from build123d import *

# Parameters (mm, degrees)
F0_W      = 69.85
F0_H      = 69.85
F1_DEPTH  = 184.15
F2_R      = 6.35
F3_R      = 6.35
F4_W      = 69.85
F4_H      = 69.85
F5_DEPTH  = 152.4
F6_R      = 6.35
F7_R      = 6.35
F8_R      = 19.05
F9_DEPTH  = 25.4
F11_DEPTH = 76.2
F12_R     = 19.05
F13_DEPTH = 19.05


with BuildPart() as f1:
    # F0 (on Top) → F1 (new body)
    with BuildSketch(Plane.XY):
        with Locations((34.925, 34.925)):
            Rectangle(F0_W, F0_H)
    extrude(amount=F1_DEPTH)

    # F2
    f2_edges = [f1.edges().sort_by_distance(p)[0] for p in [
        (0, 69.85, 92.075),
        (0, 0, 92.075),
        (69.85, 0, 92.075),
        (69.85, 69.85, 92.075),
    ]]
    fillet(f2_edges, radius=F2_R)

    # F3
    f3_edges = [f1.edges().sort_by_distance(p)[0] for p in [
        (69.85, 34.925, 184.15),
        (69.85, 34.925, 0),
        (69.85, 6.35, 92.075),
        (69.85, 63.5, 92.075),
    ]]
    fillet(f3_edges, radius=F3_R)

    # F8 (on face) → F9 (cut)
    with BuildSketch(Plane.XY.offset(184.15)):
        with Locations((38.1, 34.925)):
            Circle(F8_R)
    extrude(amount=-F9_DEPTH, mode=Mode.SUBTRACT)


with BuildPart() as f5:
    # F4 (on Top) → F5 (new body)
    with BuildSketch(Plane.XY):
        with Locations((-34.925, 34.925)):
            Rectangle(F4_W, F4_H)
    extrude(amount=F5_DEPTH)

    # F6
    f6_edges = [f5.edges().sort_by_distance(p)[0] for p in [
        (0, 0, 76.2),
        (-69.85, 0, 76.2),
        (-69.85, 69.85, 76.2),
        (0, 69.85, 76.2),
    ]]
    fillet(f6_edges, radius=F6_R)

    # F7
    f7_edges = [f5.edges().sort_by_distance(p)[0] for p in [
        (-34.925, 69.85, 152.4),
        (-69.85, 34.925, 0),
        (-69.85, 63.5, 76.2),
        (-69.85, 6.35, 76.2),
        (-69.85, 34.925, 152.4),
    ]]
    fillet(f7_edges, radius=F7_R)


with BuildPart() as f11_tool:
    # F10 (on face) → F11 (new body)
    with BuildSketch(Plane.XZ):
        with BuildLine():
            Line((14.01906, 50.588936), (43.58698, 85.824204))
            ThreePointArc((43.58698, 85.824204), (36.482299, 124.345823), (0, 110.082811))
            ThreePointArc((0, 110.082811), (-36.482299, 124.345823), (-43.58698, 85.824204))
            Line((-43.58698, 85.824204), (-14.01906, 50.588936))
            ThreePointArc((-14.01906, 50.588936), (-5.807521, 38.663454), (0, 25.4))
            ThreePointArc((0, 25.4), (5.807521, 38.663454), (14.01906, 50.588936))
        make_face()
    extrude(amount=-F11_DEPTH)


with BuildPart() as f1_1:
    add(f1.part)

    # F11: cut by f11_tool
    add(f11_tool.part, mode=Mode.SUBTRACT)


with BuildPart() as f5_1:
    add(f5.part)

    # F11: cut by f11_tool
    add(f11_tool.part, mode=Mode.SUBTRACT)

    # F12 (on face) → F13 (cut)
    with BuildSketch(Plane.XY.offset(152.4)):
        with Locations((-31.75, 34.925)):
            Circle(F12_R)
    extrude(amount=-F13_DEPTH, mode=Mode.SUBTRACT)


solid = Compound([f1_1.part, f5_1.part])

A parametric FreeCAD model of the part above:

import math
import FreeCAD as App
import Part
import Sketcher
from FreeCAD import Vector
Q = App.Units.Quantity


def edges_at(feature, points):
    """Names of the edges that pass closest to the given points."""
    edges = feature.Shape.Edges
    near = lambda p: min(range(len(edges)), key=lambda i: edges[i].distToShape(Part.Vertex(*p))[0])
    return sorted({f"Edge{near(p) + 1}" for p in points})

doc = App.newDocument("Part")
body = doc.addObject("PartDesign::Body", "Body")

# Sketch on XY plane
sketch1 = doc.addObject("Sketcher::SketchObject", "Sketch")
body.addObject(sketch1)
sketch1.AttachmentSupport = (doc.XY_Plane, [""])
sketch1.MapMode = "FlatFace"
sketch1.addGeometry(Part.LineSegment(Vector(0, 69.85, 0), Vector(0, 0, 0)), False)
sketch1.addGeometry(Part.LineSegment(Vector(0, 0, 0), Vector(69.85, 0, 0)), False)
sketch1.addGeometry(Part.LineSegment(Vector(69.85, 0, 0), Vector(69.85, 69.85, 0)), False)
sketch1.addGeometry(Part.LineSegment(Vector(69.85, 69.85, 0), Vector(0, 69.85, 0)), False)
sketch1.addConstraint(Sketcher.Constraint("Coincident", 0, 2, 1, 1))
sketch1.addConstraint(Sketcher.Constraint("Coincident", 1, 2, 2, 1))
sketch1.addConstraint(Sketcher.Constraint("Coincident", 2, 2, 3, 1))
sketch1.addConstraint(Sketcher.Constraint("Coincident", 3, 2, 0, 1))
sketch1.addConstraint(Sketcher.Constraint("Vertical", 0))
sketch1.addConstraint(Sketcher.Constraint("Horizontal", 1))
sketch1.addConstraint(Sketcher.Constraint("Vertical", 2))
sketch1.addConstraint(Sketcher.Constraint("Horizontal", 3))
sketch1.addConstraint(Sketcher.Constraint("Coincident", 0, 2, -1, 1))
sketch1.addConstraint(Sketcher.Constraint("Equal", 3, 0))
sketch1.addConstraint(Sketcher.Constraint("DistanceX", 1, 1, 1, 2, Q("2.75 in")))
pad1 = doc.addObject("PartDesign::Pad", "Pad")
body.addObject(pad1)
pad1.Profile = sketch1
pad1.Length = Q("7.25 in")
doc.recompute()

fillet = doc.addObject("PartDesign::Fillet", "Fillet")
body.addObject(fillet)
fillet.Base = (pad1, edges_at(pad1, [
    (0, 69.85, 92.075),
    (0, 0, 92.075),
    (69.85, 0, 92.075),
    (69.85, 69.85, 92.075),
]))
fillet.Radius = Q("0.25 in")
doc.recompute()

fillet2 = doc.addObject("PartDesign::Fillet", "Fillet001")
body.addObject(fillet2)
fillet2.Base = (fillet, edges_at(fillet, [
    (69.85, 34.925, 184.15),
    (69.85, 34.925, 0),
    (69.85, 6.35, 92.075),
    (69.85, 63.5, 92.075),
]))
fillet2.Radius = Q("0.25 in")

# Sketch on XY plane
sketch2 = doc.addObject("Sketcher::SketchObject", "Sketch001")
body.addObject(sketch2)
sketch2.AttachmentSupport = (doc.XY_Plane, [""])
sketch2.MapMode = "FlatFace"
sketch2.AttachmentOffset = App.Placement(Vector(0, 0, 7.25 * 25.4), App.Rotation())
sketch2.addGeometry(Part.Circle(Vector(38.1, 34.925, 0), Vector(0, 0, 1), 19.05), False)
sketch2.addConstraint(Sketcher.Constraint("Diameter", 0, Q("1.5 in")))
sketch2.addConstraint(Sketcher.Constraint("DistanceX", -1, 1, 0, 3, Q("1.5 in")))
sketch2.addConstraint(Sketcher.Constraint("DistanceY", -1, 1, 0, 3, Q("1.375 in")))
pocket1 = doc.addObject("PartDesign::Pocket", "Pocket")
body.addObject(pocket1)
pocket1.Profile = sketch2
pocket1.Length = Q("1 in")
body2 = doc.addObject("PartDesign::Body", "Body001")

# Sketch on XY plane
sketch3 = doc.addObject("Sketcher::SketchObject", "Sketch002")
body2.addObject(sketch3)
sketch3.AttachmentSupport = (doc.getObject("XY_Plane001"), [""])
sketch3.MapMode = "FlatFace"
sketch3.addGeometry(Part.LineSegment(Vector(-69.85, 69.85, 0), Vector(-69.85, 0, 0)), False)
sketch3.addGeometry(Part.LineSegment(Vector(-69.85, 0, 0), Vector(0, 0, 0)), False)
sketch3.addGeometry(Part.LineSegment(Vector(0, 0, 0), Vector(0, 69.85, 0)), False)
sketch3.addGeometry(Part.LineSegment(Vector(0, 69.85, 0), Vector(-69.85, 69.85, 0)), False)
sketch3.addConstraint(Sketcher.Constraint("Coincident", 0, 2, 1, 1))
sketch3.addConstraint(Sketcher.Constraint("Coincident", 1, 2, 2, 1))
sketch3.addConstraint(Sketcher.Constraint("Coincident", 2, 2, 3, 1))
sketch3.addConstraint(Sketcher.Constraint("Coincident", 3, 2, 0, 1))
sketch3.addConstraint(Sketcher.Constraint("Vertical", 0))
sketch3.addConstraint(Sketcher.Constraint("Horizontal", 1))
sketch3.addConstraint(Sketcher.Constraint("Vertical", 2))
sketch3.addConstraint(Sketcher.Constraint("Horizontal", 3))
sketch3.addConstraint(Sketcher.Constraint("Coincident", 1, 2, -1, 1))
sketch3.addConstraint(Sketcher.Constraint("Equal", 3, 0))
sketch3.addConstraint(Sketcher.Constraint("DistanceX", 1, 1, 1, 2, Q("2.75 in")))
pad2 = doc.addObject("PartDesign::Pad", "Pad001")
body2.addObject(pad2)
pad2.Profile = sketch3
pad2.Length = Q("6 in")
doc.recompute()

fillet3 = doc.addObject("PartDesign::Fillet", "Fillet002")
body2.addObject(fillet3)
fillet3.Base = (pad2, edges_at(pad2, [
    (0, 0, 76.2),
    (-69.85, 0, 76.2),
    (-69.85, 69.85, 76.2),
    (0, 69.85, 76.2),
]))
fillet3.Radius = Q("0.25 in")
doc.recompute()

fillet4 = doc.addObject("PartDesign::Fillet", "Fillet003")
body2.addObject(fillet4)
fillet4.Base = (fillet3, edges_at(fillet3, [
    (-34.925, 69.85, 152.4),
    (-69.85, 34.925, 0),
    (-69.85, 63.5, 76.2),
    (-69.85, 6.35, 76.2),
    (-69.85, 34.925, 152.4),
]))
fillet4.Radius = Q("0.25 in")
body3 = doc.addObject("PartDesign::Body", "Body002")

# Sketch on XZ plane
sketch4 = doc.addObject("Sketcher::SketchObject", "Sketch003")
body3.addObject(sketch4)
sketch4.AttachmentSupport = (doc.getObject("XZ_Plane002"), [""])
sketch4.MapMode = "FlatFace"
sketch4.addGeometry(Part.LineSegment(Vector(14.01906, 50.588936, 0), Vector(43.58698, 85.824204, 0)), False)
sketch4.addGeometry(Part.ArcOfCircle(Part.Circle(Vector(24.13, 102.151664, 0), Vector(0, 0, 1), 25.4), math.radians(-40.001926), math.radians(161.805128)), False)
sketch4.addGeometry(Part.ArcOfCircle(Part.Circle(Vector(-24.13, 102.151664, 0), Vector(0, 0, 1), 25.4), math.radians(18.194872), math.radians(220.001926)), False)
sketch4.addGeometry(Part.LineSegment(Vector(-43.58698, 85.824204, 0), Vector(-14.01906, 50.588936, 0)), False)
sketch4.addGeometry(Part.ArcOfCircle(Part.Circle(Vector(-72.38998, 1.60657, 0), Vector(0, 0, 1), 76.199977), math.radians(18.194869), math.radians(40.001929)), False)
sketch4.addGeometry(Part.ArcOfCircle(Part.Circle(Vector(72.38998, 1.60657, 0), Vector(0, 0, 1), 76.199977), math.radians(139.998071), math.radians(161.805131)), False)
sketch4.addConstraint(Sketcher.Constraint("Tangent", 0, 2, 1, 1))
sketch4.addConstraint(Sketcher.Constraint("Coincident", 1, 2, 2, 1))
sketch4.addConstraint(Sketcher.Constraint("Tangent", 2, 2, 3, 1))
sketch4.addConstraint(Sketcher.Constraint("Tangent", 3, 2, 4, 2))
sketch4.addConstraint(Sketcher.Constraint("Coincident", 4, 1, 5, 2))
sketch4.addConstraint(Sketcher.Constraint("Tangent", 5, 1, 0, 1))
sketch4.addConstraint(Sketcher.Constraint("Equal", 1, 2))
sketch4.addConstraint(Sketcher.Constraint("Equal", 4, 5))
sketch4.addConstraint(Sketcher.Constraint("Symmetric", 1, 3, 2, 3, -2))
sketch4.addConstraint(Sketcher.Constraint("Symmetric", 4, 3, 5, 3, -2))
sketch4.addConstraint(Sketcher.Constraint("Radius", 1, Q("1 in")))
sketch4.addConstraint(Sketcher.Constraint("DistanceY", -1, 1, 4, 1, Q("1 in")))
sketch4.addConstraint(Sketcher.Constraint("DistanceX", 2, 3, 1, 3, Q("1.9 in")))
sketch4.addConstraint(Sketcher.Constraint("Radius", 4, 76.199977))
sketch4.addConstraint(Sketcher.Constraint("DistanceX", 0, 2, 5, 3, 28.803))
sketch4.addConstraint(Sketcher.Constraint("DistanceX", 4, 3, -1, 1, 72.38998))
pad3 = doc.addObject("PartDesign::Pad", "Pad002")
body3.addObject(pad3)
pad3.Profile = sketch4
pad3.Length = Q("3 in")
pad3.Reversed = True
doc.recompute()

body4 = doc.addObject("PartDesign::Body", "Body003")
body4.BaseFeature = body3
boolean = doc.addObject("PartDesign::Boolean", "Boolean")
body.addObject(boolean)
boolean.Type = "Cut"
boolean.addObjects([body4])
doc.recompute()

boolean2 = doc.addObject("PartDesign::Boolean", "Boolean001")
body2.addObject(boolean2)
boolean2.Type = "Cut"
boolean2.addObjects([body3])

# Sketch on XY plane
sketch5 = doc.addObject("Sketcher::SketchObject", "Sketch004")
body2.addObject(sketch5)
sketch5.AttachmentSupport = (doc.getObject("XY_Plane001"), [""])
sketch5.MapMode = "FlatFace"
sketch5.AttachmentOffset = App.Placement(Vector(0, 0, 6 * 25.4), App.Rotation())
sketch5.addGeometry(Part.Circle(Vector(-31.75, 34.925, 0), Vector(0, 0, 1), 19.05), False)
sketch5.addConstraint(Sketcher.Constraint("Diameter", 0, Q("1.5 in")))
sketch5.addConstraint(Sketcher.Constraint("DistanceX", 0, 3, -1, 1, Q("1.25 in")))
sketch5.addConstraint(Sketcher.Constraint("DistanceY", -1, 1, 0, 3, Q("1.375 in")))
pocket2 = doc.addObject("PartDesign::Pocket", "Pocket001")
body2.addObject(pocket2)
pocket2.Profile = sketch5
pocket2.Length = Q("0.75 in")

doc.recompute()
